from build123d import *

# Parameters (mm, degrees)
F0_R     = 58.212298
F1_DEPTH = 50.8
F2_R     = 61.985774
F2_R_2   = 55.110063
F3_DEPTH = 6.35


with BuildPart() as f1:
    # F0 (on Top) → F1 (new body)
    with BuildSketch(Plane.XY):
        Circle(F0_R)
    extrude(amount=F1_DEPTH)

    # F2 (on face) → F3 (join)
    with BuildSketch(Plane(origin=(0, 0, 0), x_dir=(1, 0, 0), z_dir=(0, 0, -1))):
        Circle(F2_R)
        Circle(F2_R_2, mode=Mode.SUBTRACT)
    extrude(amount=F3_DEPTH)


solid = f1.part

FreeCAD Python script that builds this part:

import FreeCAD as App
import Part
import Sketcher
Q = App.Units.Quantity

doc = App.newDocument("Part")
body = doc.addObject("PartDesign::Body", "Body")

# Sketch on XY plane
sketch1 = body.newObject("Sketcher::SketchObject", "Sketch")
sketch1.AttachmentSupport = (doc.getObject("XY_Plane"), [""])
sketch1.MapMode = "FlatFace"
sketch1.addGeometry(Part.Circle(App.Vector(0, 0, 0), App.Vector(0, 0, 1), 58.212298), False)
sketch1.addConstraint(Sketcher.Constraint("Coincident", 0, 3, -1, 1))
sketch1.addConstraint(Sketcher.Constraint("Diameter", 0, 116.424596))
pad1 = body.newObject("PartDesign::Pad", "Pad")
pad1.Profile = sketch1
pad1.Length = Q("2 in")

# Sketch on XY plane
sketch2 = body.newObject("Sketcher::SketchObject", "Sketch001")
sketch2.AttachmentSupport = (doc.getObject("XY_Plane"), [""])
sketch2.MapMode = "FlatFace"
sketch2.addGeometry(Part.Circle(App.Vector(0, 0, 0), App.Vector(0, 0, 1), 61.985774), False)
sketch2.addGeometry(Part.Circle(App.Vector(0, 0, 0), App.Vector(0, 0, 1), 55.110063), False)
sketch2.addConstraint(Sketcher.Constraint("Coincident", 0, 3, -1, 1))
sketch2.addConstraint(Sketcher.Constraint("Coincident", 1, 3, -1, 1))
sketch2.addConstraint(Sketcher.Constraint("Diameter", 0, 123.971548))
sketch2.addConstraint(Sketcher.Constraint("Diameter", 1, 110.220126))
pad2 = body.newObject("PartDesign::Pad", "Pad001")
pad2.Profile = sketch2
pad2.Length = Q("0.25 in")
pad2.Reversed = True

doc.recompute()
